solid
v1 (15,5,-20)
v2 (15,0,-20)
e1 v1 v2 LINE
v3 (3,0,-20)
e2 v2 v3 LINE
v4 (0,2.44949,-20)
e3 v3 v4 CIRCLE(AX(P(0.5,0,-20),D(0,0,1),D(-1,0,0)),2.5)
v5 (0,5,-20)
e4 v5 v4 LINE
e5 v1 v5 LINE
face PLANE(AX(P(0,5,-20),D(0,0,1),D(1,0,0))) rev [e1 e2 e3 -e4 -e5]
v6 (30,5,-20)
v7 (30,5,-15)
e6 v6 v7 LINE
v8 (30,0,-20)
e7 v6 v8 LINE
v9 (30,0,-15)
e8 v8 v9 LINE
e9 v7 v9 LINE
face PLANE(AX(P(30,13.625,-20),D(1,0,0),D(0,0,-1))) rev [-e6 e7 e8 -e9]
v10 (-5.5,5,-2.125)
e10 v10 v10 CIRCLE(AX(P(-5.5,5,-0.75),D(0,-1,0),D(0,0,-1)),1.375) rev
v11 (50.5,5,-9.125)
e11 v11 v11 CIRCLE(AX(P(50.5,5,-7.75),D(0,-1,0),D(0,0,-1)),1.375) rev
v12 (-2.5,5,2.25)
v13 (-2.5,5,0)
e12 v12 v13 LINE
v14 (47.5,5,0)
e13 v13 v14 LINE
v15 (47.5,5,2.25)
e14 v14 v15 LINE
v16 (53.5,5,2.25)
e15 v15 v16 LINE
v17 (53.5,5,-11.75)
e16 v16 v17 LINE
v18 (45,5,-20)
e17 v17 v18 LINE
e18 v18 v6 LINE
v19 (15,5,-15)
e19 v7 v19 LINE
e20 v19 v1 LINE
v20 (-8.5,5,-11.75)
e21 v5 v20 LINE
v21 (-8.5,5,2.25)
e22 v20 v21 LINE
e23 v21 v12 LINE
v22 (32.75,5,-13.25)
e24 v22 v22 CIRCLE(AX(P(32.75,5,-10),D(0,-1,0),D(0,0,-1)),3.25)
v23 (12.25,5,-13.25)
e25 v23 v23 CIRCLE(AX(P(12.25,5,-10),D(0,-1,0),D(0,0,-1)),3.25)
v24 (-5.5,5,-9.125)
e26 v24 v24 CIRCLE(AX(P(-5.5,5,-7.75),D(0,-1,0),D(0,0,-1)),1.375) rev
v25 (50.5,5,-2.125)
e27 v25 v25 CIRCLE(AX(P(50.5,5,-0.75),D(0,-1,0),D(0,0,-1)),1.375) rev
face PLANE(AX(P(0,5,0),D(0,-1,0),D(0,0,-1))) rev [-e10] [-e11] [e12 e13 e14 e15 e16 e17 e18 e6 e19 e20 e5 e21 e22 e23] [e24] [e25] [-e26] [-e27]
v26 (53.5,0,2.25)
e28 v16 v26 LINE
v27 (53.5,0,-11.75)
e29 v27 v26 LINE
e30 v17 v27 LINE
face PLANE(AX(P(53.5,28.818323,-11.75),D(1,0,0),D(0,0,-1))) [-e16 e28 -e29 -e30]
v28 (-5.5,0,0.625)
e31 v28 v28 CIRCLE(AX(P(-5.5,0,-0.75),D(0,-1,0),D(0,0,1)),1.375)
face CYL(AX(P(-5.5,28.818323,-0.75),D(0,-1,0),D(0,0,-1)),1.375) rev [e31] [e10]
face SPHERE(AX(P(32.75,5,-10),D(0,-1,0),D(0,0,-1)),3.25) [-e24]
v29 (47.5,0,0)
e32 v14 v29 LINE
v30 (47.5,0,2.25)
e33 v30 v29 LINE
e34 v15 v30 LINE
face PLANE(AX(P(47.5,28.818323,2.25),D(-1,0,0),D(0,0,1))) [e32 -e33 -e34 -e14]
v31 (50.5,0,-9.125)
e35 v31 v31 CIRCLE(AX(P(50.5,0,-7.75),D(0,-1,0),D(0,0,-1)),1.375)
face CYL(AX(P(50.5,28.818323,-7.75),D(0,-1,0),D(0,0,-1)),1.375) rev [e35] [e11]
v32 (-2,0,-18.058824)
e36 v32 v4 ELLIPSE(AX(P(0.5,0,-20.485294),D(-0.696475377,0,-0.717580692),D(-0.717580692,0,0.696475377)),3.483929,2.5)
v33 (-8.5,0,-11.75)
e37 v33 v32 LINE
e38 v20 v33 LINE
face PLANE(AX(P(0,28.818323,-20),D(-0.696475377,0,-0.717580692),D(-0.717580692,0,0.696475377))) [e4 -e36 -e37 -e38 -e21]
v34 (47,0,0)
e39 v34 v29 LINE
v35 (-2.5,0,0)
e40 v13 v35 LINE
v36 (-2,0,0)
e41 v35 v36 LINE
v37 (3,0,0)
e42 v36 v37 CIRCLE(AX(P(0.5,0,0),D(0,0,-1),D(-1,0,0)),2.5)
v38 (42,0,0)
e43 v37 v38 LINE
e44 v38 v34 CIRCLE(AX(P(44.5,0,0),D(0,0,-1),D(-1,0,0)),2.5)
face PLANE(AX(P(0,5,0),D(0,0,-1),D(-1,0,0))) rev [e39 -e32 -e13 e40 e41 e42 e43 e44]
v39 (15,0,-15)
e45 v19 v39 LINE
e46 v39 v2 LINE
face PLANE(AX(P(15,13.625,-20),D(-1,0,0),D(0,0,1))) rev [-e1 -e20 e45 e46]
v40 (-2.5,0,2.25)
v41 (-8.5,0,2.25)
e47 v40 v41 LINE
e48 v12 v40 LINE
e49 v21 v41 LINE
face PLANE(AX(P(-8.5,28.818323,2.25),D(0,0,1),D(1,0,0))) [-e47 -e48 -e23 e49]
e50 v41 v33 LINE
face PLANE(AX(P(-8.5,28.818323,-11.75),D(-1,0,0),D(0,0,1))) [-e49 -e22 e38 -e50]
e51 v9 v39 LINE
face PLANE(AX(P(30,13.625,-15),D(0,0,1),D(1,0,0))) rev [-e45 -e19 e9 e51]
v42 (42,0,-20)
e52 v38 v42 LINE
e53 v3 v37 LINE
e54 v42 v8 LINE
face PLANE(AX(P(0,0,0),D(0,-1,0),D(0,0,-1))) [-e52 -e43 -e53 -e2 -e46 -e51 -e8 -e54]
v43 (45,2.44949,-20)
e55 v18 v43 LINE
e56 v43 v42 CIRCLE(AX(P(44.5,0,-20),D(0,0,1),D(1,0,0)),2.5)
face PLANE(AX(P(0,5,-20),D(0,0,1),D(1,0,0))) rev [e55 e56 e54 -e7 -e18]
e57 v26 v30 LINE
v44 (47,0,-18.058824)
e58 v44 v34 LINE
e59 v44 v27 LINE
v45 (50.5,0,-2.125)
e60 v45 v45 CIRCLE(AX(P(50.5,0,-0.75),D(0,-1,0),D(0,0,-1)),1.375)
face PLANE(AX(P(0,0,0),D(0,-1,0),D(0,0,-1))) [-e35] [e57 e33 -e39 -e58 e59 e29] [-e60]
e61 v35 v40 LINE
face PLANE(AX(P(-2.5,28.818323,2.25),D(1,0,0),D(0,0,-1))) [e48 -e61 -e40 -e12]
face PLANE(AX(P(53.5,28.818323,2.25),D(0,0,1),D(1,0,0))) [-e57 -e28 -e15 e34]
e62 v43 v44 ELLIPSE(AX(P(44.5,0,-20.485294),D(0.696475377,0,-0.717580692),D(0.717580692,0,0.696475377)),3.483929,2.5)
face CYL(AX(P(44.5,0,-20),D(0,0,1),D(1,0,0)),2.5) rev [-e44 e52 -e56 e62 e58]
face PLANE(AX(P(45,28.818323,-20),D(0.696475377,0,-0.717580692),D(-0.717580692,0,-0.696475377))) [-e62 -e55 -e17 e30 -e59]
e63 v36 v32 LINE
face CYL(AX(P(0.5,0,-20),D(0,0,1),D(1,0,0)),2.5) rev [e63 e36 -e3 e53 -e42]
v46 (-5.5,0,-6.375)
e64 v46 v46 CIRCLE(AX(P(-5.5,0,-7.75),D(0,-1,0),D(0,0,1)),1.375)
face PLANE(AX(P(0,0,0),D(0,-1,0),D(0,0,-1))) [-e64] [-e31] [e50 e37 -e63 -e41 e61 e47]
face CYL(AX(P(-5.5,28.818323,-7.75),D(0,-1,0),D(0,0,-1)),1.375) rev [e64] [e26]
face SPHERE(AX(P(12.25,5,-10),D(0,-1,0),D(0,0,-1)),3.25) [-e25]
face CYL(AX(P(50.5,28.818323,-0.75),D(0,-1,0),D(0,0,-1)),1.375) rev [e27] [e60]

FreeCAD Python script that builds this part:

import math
import FreeCAD as App
import Part
import Sketcher
from FreeCAD import Vector

doc = App.newDocument("Part")
params = doc.addObject("Spreadsheet::Sheet", "Params")
for row, (alias, value) in enumerate([
    ("sketch1_width", "45 mm"),
    ("sketch1_height", "20 mm"),
    ("pad1_length", "5 mm"),
    ("sketch2_radius", "3.25 mm"),
    ("revolution_angle", "360 deg"),
    ("sketch3_diameter", "2.75 mm"),
    ("sketch3_width", "6 mm"),
    ("sketch3_height", "14 mm"),
    ("sketch3_height2", "20 mm"),
    ("sketch3_width2", "2.5 mm"),
    ("pad2_length", "5 mm"),
    ("sketch4_width", "15 mm"),
    ("sketch4_height", "5 mm"),
    ("pocket1_length", "13.625 mm"),
    ("sketch5_diameter", "5 mm"),
], start=1):
    params.set(f"A{row}", alias)
    params.set(f"B{row}", "=" + value)
    params.setAlias(f"B{row}", alias)

body = doc.addObject("PartDesign::Body", "Body")

sketch1 = doc.addObject("Sketcher::SketchObject", "Sketch")
body.addObject(sketch1)
sketch1.AttachmentSupport = (doc.XZ_Plane, [""])
sketch1.MapMode = "FlatFace"
sketch1.addGeometry(Part.LineSegment(Vector(0, -20, 0), Vector(0, 0, 0)), False)
sketch1.addGeometry(Part.LineSegment(Vector(0, 0, 0), Vector(45, 0, 0)), False)
sketch1.addGeometry(Part.LineSegment(Vector(45, 0, 0), Vector(45, -20, 0)), False)
sketch1.addGeometry(Part.LineSegment(Vector(45, -20, 0), Vector(0, -20, 0)), False)
sketch1.addConstraint(Sketcher.Constraint("Coincident", 0, 2, 1, 1))
sketch1.addConstraint(Sketcher.Constraint("Coincident", 1, 2, 2, 1))
sketch1.addConstraint(Sketcher.Constraint("Coincident", 2, 2, 3, 1))
sketch1.addConstraint(Sketcher.Constraint("Coincident", 3, 2, 0, 1))
sketch1.addConstraint(Sketcher.Constraint("Vertical", 0))
sketch1.addConstraint(Sketcher.Constraint("Horizontal", 1))
sketch1.addConstraint(Sketcher.Constraint("Vertical", 2))
sketch1.addConstraint(Sketcher.Constraint("Horizontal", 3))
sketch1.addConstraint(Sketcher.Constraint("Coincident", 0, 2, -1, 1))
sketch1.addConstraint(Sketcher.Constraint("DistanceX", 1, 1, 1, 2, 45.0))
sketch1.addConstraint(Sketcher.Constraint("DistanceY", 0, 1, 0, 2, 20.0))
sketch1.setExpression("Constraints[9]", "Params.sketch1_width")
sketch1.setExpression("Constraints[10]", "Params.sketch1_height")
pad1 = doc.addObject("PartDesign::Pad", "Pad")
body.addObject(pad1)
pad1.Profile = sketch1
pad1.setExpression("Length", "Params.pad1_length")
pad1.Reversed = True

sketch2 = doc.addObject("Sketcher::SketchObject", "Sketch001")
body.addObject(sketch2)
sketch2.AttachmentSupport = (doc.XZ_Plane, [""])
sketch2.MapMode = "FlatFace"
sketch2.AttachmentOffset = App.Placement(Vector(0, 0, -5), App.Rotation())
sketch2.addGeometry(Part.LineSegment(Vector(12.2, -6.8, 0), Vector(12.2, -13.2, 0)), False)
sketch2.addGeometry(Part.ArcOfCircle(Part.Circle(Vector(12.2, -10, 0), Vector(0, 0, 1), 3.2), math.radians(90), math.radians(270)), False)
sketch2.addGeometry(Part.LineSegment(Vector(12.2, -13.2, 0), Vector(12.2, -6.8, 0)), True)
sketch2.addConstraint(Sketcher.Constraint("Coincident", 0, 1, 1, 1))
sketch2.addConstraint(Sketcher.Constraint("Coincident", 1, 2, 0, 2))
sketch2.addConstraint(Sketcher.Constraint("Vertical", 0))
sketch2.addConstraint(Sketcher.Constraint("Vertical", 2))
sketch2.addConstraint(Sketcher.Constraint("Coincident", 2, 1, 1, 2))
sketch2.addConstraint(Sketcher.Constraint("Vertical", 1, 3, 0, 1))
sketch2.addConstraint(Sketcher.Constraint("Equal", 0, 2))
sketch2.addConstraint(Sketcher.Constraint("Radius", 1, 3.25))
sketch2.addConstraint(Sketcher.Constraint("DistanceY", 1, 3, -1, 1, 10.0))
sketch2.addConstraint(Sketcher.Constraint("DistanceX", -1, 1, 1, 3, 12.25))
sketch2.setExpression("Constraints[7]", "Params.sketch2_radius")
revolution = doc.addObject("PartDesign::Revolution", "Revolution")
body.addObject(revolution)
revolution.Profile = sketch2
revolution.ReferenceAxis = (sketch2, ["Axis0"])
revolution.setExpression("Angle", "Params.revolution_angle")
doc.recompute()

datumplane = doc.addObject("PartDesign::Plane", "DatumPlane")
body.addObject(datumplane)
datumplane.AttachmentSupport = (doc.YZ_Plane, [""])
datumplane.MapMode = "FlatFace"
datumplane.AttachmentOffset = App.Placement(Vector(0, 0, 22.5), App.Rotation())
mirrored = doc.addObject("PartDesign::Mirrored", "Mirrored")
body.addObject(mirrored)
mirrored.Originals = [revolution]
mirrored.MirrorPlane = (datumplane, [""])
body.Tip = mirrored

sketch3 = doc.addObject("Sketcher::SketchObject", "Sketch002")
body.addObject(sketch3)
sketch3.AttachmentSupport = (doc.XZ_Plane, [""])
sketch3.MapMode = "FlatFace"
sketch3.addGeometry(Part.LineSegment(Vector(45, -20, 0), Vector(53.5, -11.8, 0)), False)
sketch3.addGeometry(Part.LineSegment(Vector(53.5, -11.8, 0), Vector(53.5, 2.2, 0)), False)
sketch3.addGeometry(Part.LineSegment(Vector(53.5, 2.2, 0), Vector(47.5, 2.2, 0)), False)
sketch3.addGeometry(Part.LineSegment(Vector(47.5, 2.2, 0), Vector(47.5, 0, 0)), False)
sketch3.addGeometry(Part.LineSegment(Vector(47.5, 0, 0), Vector(45, 0, 0)), False)
sketch3.addGeometry(Part.LineSegment(Vector(45, 0, 0), Vector(45, -20, 0)), False)
sketch3.addGeometry(Part.Circle(Vector(50.5, -7.8, 0), Vector(0, 0, 1), 1.4), False)
sketch3.addGeometry(Part.Circle(Vector(50.5, -0.8, 0), Vector(0, 0, 1), 1.4), False)
sketch3.addGeometry(Part.LineSegment(Vector(0, 0, 0), Vector(-2.5, 0, 0)), False)
sketch3.addGeometry(Part.LineSegment(Vector(-2.5, 0, 0), Vector(-2.5, 2.2, 0)), False)
sketch3.addGeometry(Part.LineSegment(Vector(-2.5, 2.2, 0), Vector(-8.5, 2.2, 0)), False)
sketch3.addGeometry(Part.LineSegment(Vector(-8.5, 2.2, 0), Vector(-8.5, -11.8, 0)), False)
sketch3.addGeometry(Part.LineSegment(Vector(-8.5, -11.8, 0), Vector(0, -20, 0)), False)
sketch3.addGeometry(Part.LineSegment(Vector(0, -20, 0), Vector(0, 0, 0)), False)
sketch3.addGeometry(Part.Circle(Vector(-5.5, -7.8, 0), Vector(0, 0, 1), 1.4), False)
sketch3.addGeometry(Part.Circle(Vector(-5.5, -0.8, 0), Vector(0, 0, 1), 1.4), False)
sketch3.addConstraint(Sketcher.Constraint("Coincident", 0, 2, 1, 1))
sketch3.addConstraint(Sketcher.Constraint("Coincident", 1, 2, 2, 1))
sketch3.addConstraint(Sketcher.Constraint("Coincident", 2, 2, 3, 1))
sketch3.addConstraint(Sketcher.Constraint("Coincident", 3, 2, 4, 1))
sketch3.addConstraint(Sketcher.Constraint("Coincident", 4, 2, 5, 1))
sketch3.addConstraint(Sketcher.Constraint("Coincident", 5, 2, 0, 1))
sketch3.addConstraint(Sketcher.Constraint("Coincident", 8, 2, 9, 1))
sketch3.addConstraint(Sketcher.Constraint("Coincident", 9, 2, 10, 1))
sketch3.addConstraint(Sketcher.Constraint("Coincident", 10, 2, 11, 1))
sketch3.addConstraint(Sketcher.Constraint("Coincident", 11, 2, 12, 1))
sketch3.addConstraint(Sketcher.Constraint("Coincident", 12, 2, 13, 1))
sketch3.addConstraint(Sketcher.Constraint("Coincident", 13, 2, 8, 1))
sketch3.addConstraint(Sketcher.Constraint("Vertical", 1))
sketch3.addConstraint(Sketcher.Constraint("Horizontal", 2))
sketch3.addConstraint(Sketcher.Constraint("Vertical", 3))
sketch3.addConstraint(Sketcher.Constraint("Horizontal", 4))
sketch3.addConstraint(Sketcher.Constraint("Vertical", 5))
sketch3.addConstraint(Sketcher.Constraint("Horizontal", 8))
sketch3.addConstraint(Sketcher.Constraint("Vertical", 9))
sketch3.addConstraint(Sketcher.Constraint("Horizontal", 10))
sketch3.addConstraint(Sketcher.Constraint("Vertical", 11))
sketch3.addConstraint(Sketcher.Constraint("Vertical", 13))
sketch3.addConstraint(Sketcher.Constraint("Coincident", 13, 2, -1, 1))
sketch3.addConstraint(Sketcher.Constraint("Equal", 6, 7))
sketch3.addConstraint(Sketcher.Constraint("Equal", 7, 14))
sketch3.addConstraint(Sketcher.Constraint("Equal", 14, 15))
sketch3.addConstraint(Sketcher.Constraint("PointOnObject", 3, 2, -1))
sketch3.addConstraint(Sketcher.Constraint("Horizontal", 6, 3, 14, 3))
sketch3.addConstraint(Sketcher.Constraint("Horizontal", 7, 3, 15, 3))
sketch3.addConstraint(Sketcher.Constraint("Horizontal", 2, 2, 9, 2))
sketch3.addConstraint(Sketcher.Constraint("Horizontal", 0, 2, 11, 2))
sketch3.addConstraint(Sketcher.Constraint("Horizontal", 5, 2, 12, 2))
sketch3.addConstraint(Sketcher.Constraint("Vertical", 6, 3, 7, 3))
sketch3.addConstraint(Sketcher.Constraint("Vertical", 14, 3, 15, 3))
sketch3.addConstraint(Sketcher.Constraint("Equal", 4, 8))
sketch3.addConstraint(Sketcher.Constraint("Equal", 2, 10))
sketch3.addConstraint(Sketcher.Constraint("Diameter", 6, 2.75))
sketch3.addConstraint(Sketcher.Constraint("DistanceX", 2, 2, 2, 1, 6.0))
sketch3.addConstraint(Sketcher.Constraint("DistanceY", 1, 1, 1, 2, 14.0))
sketch3.addConstraint(Sketcher.Constraint("DistanceY", 5, 2, 5, 1, 20.0))
sketch3.addConstraint(Sketcher.Constraint("DistanceX", 4, 2, 4, 1, 2.5))
sketch3.addConstraint(Sketcher.Constraint("DistanceX", -1, 1, 4, 2, 45.0))
sketch3.addConstraint(Sketcher.Constraint("DistanceY", 6, 3, 7, 3, 7.0))
sketch3.addConstraint(Sketcher.Constraint("DistanceX", 14, 3, 6, 3, 56.0))
sketch3.addConstraint(Sketcher.Constraint("DistanceX", 6, 3, 0, 2, 3.0))
sketch3.addConstraint(Sketcher.Constraint("DistanceY", 0, 2, 6, 3, 4.0))
sketch3.addConstraint(Sketcher.Constraint("DistanceY", 3, 2, 3, 1, 2.25))
sketch3.setExpression("Constraints[36]", "Params.sketch3_diameter")
sketch3.setExpression("Constraints[37]", "Params.sketch3_width")
sketch3.setExpression("Constraints[38]", "Params.sketch3_height")
sketch3.setExpression("Constraints[39]", "Params.sketch3_height2")
sketch3.setExpression("Constraints[40]", "Params.sketch3_width2")
pad2 = doc.addObject("PartDesign::Pad", "Pad001")
body.addObject(pad2)
pad2.Profile = sketch3
pad2.setExpression("Length", "Params.pad2_length")
pad2.Reversed = True

sketch4 = doc.addObject("Sketcher::SketchObject", "Sketch003")
body.addObject(sketch4)
sketch4.AttachmentSupport = (doc.XZ_Plane, [""])
sketch4.MapMode = "FlatFace"
sketch4.addGeometry(Part.LineSegment(Vector(15, -15, 0), Vector(15, -20, 0)), False)
sketch4.addGeometry(Part.LineSegment(Vector(15, -20, 0), Vector(30, -20, 0)), False)
sketch4.addGeometry(Part.LineSegment(Vector(30, -20, 0), Vector(30, -15, 0)), False)
sketch4.addGeometry(Part.LineSegment(Vector(30, -15, 0), Vector(15, -15, 0)), False)
sketch4.addConstraint(Sketcher.Constraint("Coincident", 0, 2, 1, 1))
sketch4.addConstraint(Sketcher.Constraint("Coincident", 1, 2, 2, 1))
sketch4.addConstraint(Sketcher.Constraint("Coincident", 2, 2, 3, 1))
sketch4.addConstraint(Sketcher.Constraint("Coincident", 3, 2, 0, 1))
sketch4.addConstraint(Sketcher.Constraint("Vertical", 0))
sketch4.addConstraint(Sketcher.Constraint("Horizontal", 1))
sketch4.addConstraint(Sketcher.Constraint("Vertical", 2))
sketch4.addConstraint(Sketcher.Constraint("Horizontal", 3))
sketch4.addConstraint(Sketcher.Constraint("DistanceX", 1, 1, 1, 2, 15.0))
sketch4.addConstraint(Sketcher.Constraint("DistanceY", 0, 2, 0, 1, 5.0))
sketch4.addConstraint(Sketcher.Constraint("DistanceX", -1, 1, 0, 2, 15.0))
sketch4.addConstraint(Sketcher.Constraint("DistanceY", 0, 2, -1, 1, 20.0))
sketch4.setExpression("Constraints[8]", "Params.sketch4_width")
sketch4.setExpression("Constraints[9]", "Params.sketch4_height")
pocket1 = doc.addObject("PartDesign::Pocket", "Pocket")
body.addObject(pocket1)
pocket1.Profile = sketch4
pocket1.setExpression("Length", "Params.pocket1_length")

sketch5 = doc.addObject("Sketcher::SketchObject", "Sketch004")
body.addObject(sketch5)
sketch5.AttachmentSupport = (doc.XY_Plane, [""])
sketch5.MapMode = "FlatFace"
sketch5.addGeometry(Part.Circle(Vector(44.5, 0, 0), Vector(0, 0, 1), 2.5), False)
sketch5.addGeometry(Part.Circle(Vector(0.5, 0, 0), Vector(0, 0, 1), 2.5), False)
sketch5.addConstraint(Sketcher.Constraint("Equal", 0, 1))
sketch5.addConstraint(Sketcher.Constraint("PointOnObject", 0, 3, -1))
sketch5.addConstraint(Sketcher.Constraint("PointOnObject", 1, 3, -1))
sketch5.addConstraint(Sketcher.Constraint("Diameter", 0, 5.0))
sketch5.addConstraint(Sketcher.Constraint("DistanceX", 1, 3, 0, 3, 44.0))
sketch5.addConstraint(Sketcher.Constraint("DistanceX", -1, 1, 0, 3, 44.5))
sketch5.setExpression("Constraints[3]", "Params.sketch5_diameter")
pocket2 = doc.addObject("PartDesign::Pocket", "Pocket001")
body.addObject(pocket2)
pocket2.Profile = sketch5
pocket2.Type = "ThroughAll"
pocket2.Midplane = True

doc.recompute()
